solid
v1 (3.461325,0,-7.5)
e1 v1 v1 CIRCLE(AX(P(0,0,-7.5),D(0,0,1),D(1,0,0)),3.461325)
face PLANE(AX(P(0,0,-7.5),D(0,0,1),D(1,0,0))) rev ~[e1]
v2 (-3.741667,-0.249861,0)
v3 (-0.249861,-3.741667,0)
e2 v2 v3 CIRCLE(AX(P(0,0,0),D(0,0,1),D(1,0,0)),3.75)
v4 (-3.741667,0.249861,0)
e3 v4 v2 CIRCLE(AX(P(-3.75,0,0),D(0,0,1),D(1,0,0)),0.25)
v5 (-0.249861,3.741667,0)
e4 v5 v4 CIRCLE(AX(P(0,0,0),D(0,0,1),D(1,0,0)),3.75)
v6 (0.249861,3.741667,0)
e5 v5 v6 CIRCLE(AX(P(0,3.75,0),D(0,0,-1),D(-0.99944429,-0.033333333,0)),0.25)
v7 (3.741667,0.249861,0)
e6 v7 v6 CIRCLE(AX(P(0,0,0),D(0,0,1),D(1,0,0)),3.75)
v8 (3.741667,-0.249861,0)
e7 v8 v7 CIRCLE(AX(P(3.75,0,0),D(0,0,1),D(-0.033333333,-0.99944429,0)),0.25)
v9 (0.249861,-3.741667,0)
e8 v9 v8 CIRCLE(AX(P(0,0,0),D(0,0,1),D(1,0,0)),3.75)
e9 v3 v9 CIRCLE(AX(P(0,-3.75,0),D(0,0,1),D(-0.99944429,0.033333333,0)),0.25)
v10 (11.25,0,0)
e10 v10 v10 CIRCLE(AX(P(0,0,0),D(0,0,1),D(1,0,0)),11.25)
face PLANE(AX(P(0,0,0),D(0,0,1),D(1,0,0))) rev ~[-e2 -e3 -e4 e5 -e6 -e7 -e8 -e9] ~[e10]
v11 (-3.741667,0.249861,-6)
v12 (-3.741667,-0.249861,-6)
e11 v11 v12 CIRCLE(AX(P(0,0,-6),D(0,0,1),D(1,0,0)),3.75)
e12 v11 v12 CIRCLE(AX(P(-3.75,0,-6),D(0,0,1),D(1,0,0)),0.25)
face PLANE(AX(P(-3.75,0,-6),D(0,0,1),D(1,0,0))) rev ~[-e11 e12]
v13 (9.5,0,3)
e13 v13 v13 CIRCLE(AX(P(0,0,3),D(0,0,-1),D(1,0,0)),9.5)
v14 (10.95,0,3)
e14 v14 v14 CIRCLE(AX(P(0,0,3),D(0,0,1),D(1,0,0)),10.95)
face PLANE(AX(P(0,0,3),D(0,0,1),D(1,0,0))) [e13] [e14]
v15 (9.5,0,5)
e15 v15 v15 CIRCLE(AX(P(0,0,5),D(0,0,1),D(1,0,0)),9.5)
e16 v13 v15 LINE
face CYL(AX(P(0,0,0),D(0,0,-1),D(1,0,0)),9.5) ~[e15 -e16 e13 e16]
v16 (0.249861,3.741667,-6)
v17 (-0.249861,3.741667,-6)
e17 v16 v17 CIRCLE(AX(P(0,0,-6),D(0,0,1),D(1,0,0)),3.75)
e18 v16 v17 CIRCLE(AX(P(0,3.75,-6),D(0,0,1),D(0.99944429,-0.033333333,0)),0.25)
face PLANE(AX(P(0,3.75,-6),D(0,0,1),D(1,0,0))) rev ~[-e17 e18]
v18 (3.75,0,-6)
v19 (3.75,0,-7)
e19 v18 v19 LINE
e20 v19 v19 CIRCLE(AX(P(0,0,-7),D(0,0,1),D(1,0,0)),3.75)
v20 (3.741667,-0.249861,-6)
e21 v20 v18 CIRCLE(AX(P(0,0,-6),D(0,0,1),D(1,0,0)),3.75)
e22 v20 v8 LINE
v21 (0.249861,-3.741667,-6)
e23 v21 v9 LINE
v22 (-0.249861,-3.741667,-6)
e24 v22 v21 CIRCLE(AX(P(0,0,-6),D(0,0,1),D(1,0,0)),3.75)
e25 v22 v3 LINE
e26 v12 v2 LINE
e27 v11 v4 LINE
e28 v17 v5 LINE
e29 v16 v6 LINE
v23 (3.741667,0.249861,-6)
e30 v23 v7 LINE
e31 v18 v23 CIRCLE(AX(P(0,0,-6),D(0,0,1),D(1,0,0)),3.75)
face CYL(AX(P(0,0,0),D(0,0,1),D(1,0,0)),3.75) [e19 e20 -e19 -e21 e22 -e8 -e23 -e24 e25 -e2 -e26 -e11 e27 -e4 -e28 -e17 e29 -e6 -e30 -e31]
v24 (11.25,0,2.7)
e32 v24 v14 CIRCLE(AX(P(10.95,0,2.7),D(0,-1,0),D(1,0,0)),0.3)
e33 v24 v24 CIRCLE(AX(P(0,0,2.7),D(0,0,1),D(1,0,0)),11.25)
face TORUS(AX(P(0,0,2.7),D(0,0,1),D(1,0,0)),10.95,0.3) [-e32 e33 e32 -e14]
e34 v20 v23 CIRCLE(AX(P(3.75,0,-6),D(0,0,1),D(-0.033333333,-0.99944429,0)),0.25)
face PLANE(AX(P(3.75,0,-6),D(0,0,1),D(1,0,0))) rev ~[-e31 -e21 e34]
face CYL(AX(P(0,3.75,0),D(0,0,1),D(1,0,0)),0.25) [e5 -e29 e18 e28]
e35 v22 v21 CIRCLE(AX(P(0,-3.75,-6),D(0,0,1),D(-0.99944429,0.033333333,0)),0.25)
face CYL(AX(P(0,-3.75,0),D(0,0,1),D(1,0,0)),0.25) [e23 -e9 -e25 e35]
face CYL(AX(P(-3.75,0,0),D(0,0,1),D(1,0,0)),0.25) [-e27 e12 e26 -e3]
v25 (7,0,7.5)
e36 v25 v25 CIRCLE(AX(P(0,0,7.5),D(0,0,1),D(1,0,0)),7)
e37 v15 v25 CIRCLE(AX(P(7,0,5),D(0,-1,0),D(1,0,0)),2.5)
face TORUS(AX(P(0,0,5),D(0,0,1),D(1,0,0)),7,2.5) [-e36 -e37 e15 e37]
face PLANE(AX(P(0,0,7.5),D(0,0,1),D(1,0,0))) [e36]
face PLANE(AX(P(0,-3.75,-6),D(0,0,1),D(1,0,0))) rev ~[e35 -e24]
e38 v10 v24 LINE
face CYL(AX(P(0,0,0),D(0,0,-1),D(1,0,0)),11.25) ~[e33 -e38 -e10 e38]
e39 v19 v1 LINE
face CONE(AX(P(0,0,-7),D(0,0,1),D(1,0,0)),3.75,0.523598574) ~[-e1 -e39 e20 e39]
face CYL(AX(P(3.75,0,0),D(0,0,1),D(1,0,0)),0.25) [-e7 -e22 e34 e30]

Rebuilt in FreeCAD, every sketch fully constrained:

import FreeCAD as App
import Part
import Sketcher
from FreeCAD import Vector
Q = App.Units.Quantity


def edges_at(feature, points):
    """Names of the edges that pass closest to the given points."""
    edges = feature.Shape.Edges
    near = lambda p: min(range(len(edges)), key=lambda i: edges[i].distToShape(Part.Vertex(*p))[0])
    return sorted({f"Edge{near(p) + 1}" for p in points})

doc = App.newDocument("Part")
body = doc.addObject("PartDesign::Body", "Body")

# Sketch on XY plane
sketch1 = body.newObject("Sketcher::SketchObject", "Sketch")
sketch1.AttachmentSupport = (doc.getObject("XY_Plane"), [""])
sketch1.MapMode = "FlatFace"
sketch1.addGeometry(Part.Circle(Vector(0, 0, 0), Vector(0, 0, 1), 11.25), False)
sketch1.addConstraint(Sketcher.Constraint("Coincident", 0, 3, -1, 1))
sketch1.addConstraint(Sketcher.Constraint("Diameter", 0, Q("22.5 mm")))
pad1 = body.newObject("PartDesign::Pad", "Pad")
pad1.Profile = sketch1
pad1.Length = 3

# Sketch on XY plane
sketch2 = body.newObject("Sketcher::SketchObject", "Sketch001")
sketch2.AttachmentSupport = (doc.getObject("XY_Plane"), [""])
sketch2.MapMode = "FlatFace"
sketch2.addGeometry(Part.Circle(Vector(0, 0, 0), Vector(0, 0, 1), 9.5), False)
sketch2.addConstraint(Sketcher.Constraint("Coincident", 0, 3, -1, 1))
sketch2.addConstraint(Sketcher.Constraint("Diameter", 0, Q("19 mm")))
pad2 = body.newObject("PartDesign::Pad", "Pad001")
pad2.Profile = sketch2
pad2.Length = 7.5

# Sketch on XY plane
sketch3 = body.newObject("Sketcher::SketchObject", "Sketch002")
sketch3.AttachmentSupport = (doc.getObject("XY_Plane"), [""])
sketch3.MapMode = "FlatFace"
sketch3.addGeometry(Part.Circle(Vector(0, 0, 0), Vector(0, 0, 1), 3.75), False)
sketch3.addConstraint(Sketcher.Constraint("Coincident", 0, 3, -1, 1))
sketch3.addConstraint(Sketcher.Constraint("Diameter", 0, Q("7.5 mm")))
pad3 = body.newObject("PartDesign::Pad", "Pad002")
pad3.Profile = sketch3
pad3.Length = 7.5
pad3.Reversed = True

# Sketch on XY plane
sketch4 = body.newObject("Sketcher::SketchObject", "Sketch003")
sketch4.AttachmentSupport = (doc.getObject("XY_Plane"), [""])
sketch4.MapMode = "FlatFace"
sketch4.addGeometry(Part.Circle(Vector(0, 3.75, 0), Vector(0, 0, 1), 0.25), False)
sketch4.addGeometry(Part.Circle(Vector(3.75, 0, 0), Vector(0, 0, 1), 0.25), False)
sketch4.addGeometry(Part.Circle(Vector(0, -3.75, 0), Vector(0, 0, 1), 0.25), False)
sketch4.addGeometry(Part.Circle(Vector(-3.75, 0, 0), Vector(0, 0, 1), 0.25), False)
sketch4.addConstraint(Sketcher.Constraint("Equal", 0, 1))
sketch4.addConstraint(Sketcher.Constraint("Equal", 1, 2))
sketch4.addConstraint(Sketcher.Constraint("Equal", 2, 3))
sketch4.addConstraint(Sketcher.Constraint("Symmetric", 0, 3, 2, 3, -1, 1))
sketch4.addConstraint(Sketcher.Constraint("Symmetric", 1, 3, 3, 3, -1, 1))
sketch4.addConstraint(Sketcher.Constraint("PointOnObject", 0, 3, -2))
sketch4.addConstraint(Sketcher.Constraint("PointOnObject", 1, 3, -1))
sketch4.addConstraint(Sketcher.Constraint("Diameter", 0, Q("0.5 mm")))
sketch4.addConstraint(Sketcher.Constraint("DistanceY", 2, 3, 0, 3, Q("7.5 mm")))
sketch4.addConstraint(Sketcher.Constraint("DistanceX", 3, 3, 1, 3, Q("7.5 mm")))
pad4 = body.newObject("PartDesign::Pad", "Pad003")
pad4.Profile = sketch4
pad4.Length = 6
pad4.Reversed = True
doc.recompute()

chamfer = body.newObject("PartDesign::Chamfer", "Chamfer")
chamfer.Base = (pad4, edges_at(pad4, [(-3.75, 0, -7.5)]))
chamfer.ChamferType = "Two distances"
chamfer.Size = 0.5
chamfer.Size2 = 0.288675
doc.recompute()

fillet = body.newObject("PartDesign::Fillet", "Fillet")
fillet.Base = (chamfer, edges_at(chamfer, [(-11.25, 0, 3)]))
fillet.Radius = 0.3
doc.recompute()

fillet2 = body.newObject("PartDesign::Fillet", "Fillet001")
fillet2.Base = (fillet, edges_at(fillet, [(-9.5, 0, 7.5)]))
fillet2.Radius = 2.5

doc.recompute()
